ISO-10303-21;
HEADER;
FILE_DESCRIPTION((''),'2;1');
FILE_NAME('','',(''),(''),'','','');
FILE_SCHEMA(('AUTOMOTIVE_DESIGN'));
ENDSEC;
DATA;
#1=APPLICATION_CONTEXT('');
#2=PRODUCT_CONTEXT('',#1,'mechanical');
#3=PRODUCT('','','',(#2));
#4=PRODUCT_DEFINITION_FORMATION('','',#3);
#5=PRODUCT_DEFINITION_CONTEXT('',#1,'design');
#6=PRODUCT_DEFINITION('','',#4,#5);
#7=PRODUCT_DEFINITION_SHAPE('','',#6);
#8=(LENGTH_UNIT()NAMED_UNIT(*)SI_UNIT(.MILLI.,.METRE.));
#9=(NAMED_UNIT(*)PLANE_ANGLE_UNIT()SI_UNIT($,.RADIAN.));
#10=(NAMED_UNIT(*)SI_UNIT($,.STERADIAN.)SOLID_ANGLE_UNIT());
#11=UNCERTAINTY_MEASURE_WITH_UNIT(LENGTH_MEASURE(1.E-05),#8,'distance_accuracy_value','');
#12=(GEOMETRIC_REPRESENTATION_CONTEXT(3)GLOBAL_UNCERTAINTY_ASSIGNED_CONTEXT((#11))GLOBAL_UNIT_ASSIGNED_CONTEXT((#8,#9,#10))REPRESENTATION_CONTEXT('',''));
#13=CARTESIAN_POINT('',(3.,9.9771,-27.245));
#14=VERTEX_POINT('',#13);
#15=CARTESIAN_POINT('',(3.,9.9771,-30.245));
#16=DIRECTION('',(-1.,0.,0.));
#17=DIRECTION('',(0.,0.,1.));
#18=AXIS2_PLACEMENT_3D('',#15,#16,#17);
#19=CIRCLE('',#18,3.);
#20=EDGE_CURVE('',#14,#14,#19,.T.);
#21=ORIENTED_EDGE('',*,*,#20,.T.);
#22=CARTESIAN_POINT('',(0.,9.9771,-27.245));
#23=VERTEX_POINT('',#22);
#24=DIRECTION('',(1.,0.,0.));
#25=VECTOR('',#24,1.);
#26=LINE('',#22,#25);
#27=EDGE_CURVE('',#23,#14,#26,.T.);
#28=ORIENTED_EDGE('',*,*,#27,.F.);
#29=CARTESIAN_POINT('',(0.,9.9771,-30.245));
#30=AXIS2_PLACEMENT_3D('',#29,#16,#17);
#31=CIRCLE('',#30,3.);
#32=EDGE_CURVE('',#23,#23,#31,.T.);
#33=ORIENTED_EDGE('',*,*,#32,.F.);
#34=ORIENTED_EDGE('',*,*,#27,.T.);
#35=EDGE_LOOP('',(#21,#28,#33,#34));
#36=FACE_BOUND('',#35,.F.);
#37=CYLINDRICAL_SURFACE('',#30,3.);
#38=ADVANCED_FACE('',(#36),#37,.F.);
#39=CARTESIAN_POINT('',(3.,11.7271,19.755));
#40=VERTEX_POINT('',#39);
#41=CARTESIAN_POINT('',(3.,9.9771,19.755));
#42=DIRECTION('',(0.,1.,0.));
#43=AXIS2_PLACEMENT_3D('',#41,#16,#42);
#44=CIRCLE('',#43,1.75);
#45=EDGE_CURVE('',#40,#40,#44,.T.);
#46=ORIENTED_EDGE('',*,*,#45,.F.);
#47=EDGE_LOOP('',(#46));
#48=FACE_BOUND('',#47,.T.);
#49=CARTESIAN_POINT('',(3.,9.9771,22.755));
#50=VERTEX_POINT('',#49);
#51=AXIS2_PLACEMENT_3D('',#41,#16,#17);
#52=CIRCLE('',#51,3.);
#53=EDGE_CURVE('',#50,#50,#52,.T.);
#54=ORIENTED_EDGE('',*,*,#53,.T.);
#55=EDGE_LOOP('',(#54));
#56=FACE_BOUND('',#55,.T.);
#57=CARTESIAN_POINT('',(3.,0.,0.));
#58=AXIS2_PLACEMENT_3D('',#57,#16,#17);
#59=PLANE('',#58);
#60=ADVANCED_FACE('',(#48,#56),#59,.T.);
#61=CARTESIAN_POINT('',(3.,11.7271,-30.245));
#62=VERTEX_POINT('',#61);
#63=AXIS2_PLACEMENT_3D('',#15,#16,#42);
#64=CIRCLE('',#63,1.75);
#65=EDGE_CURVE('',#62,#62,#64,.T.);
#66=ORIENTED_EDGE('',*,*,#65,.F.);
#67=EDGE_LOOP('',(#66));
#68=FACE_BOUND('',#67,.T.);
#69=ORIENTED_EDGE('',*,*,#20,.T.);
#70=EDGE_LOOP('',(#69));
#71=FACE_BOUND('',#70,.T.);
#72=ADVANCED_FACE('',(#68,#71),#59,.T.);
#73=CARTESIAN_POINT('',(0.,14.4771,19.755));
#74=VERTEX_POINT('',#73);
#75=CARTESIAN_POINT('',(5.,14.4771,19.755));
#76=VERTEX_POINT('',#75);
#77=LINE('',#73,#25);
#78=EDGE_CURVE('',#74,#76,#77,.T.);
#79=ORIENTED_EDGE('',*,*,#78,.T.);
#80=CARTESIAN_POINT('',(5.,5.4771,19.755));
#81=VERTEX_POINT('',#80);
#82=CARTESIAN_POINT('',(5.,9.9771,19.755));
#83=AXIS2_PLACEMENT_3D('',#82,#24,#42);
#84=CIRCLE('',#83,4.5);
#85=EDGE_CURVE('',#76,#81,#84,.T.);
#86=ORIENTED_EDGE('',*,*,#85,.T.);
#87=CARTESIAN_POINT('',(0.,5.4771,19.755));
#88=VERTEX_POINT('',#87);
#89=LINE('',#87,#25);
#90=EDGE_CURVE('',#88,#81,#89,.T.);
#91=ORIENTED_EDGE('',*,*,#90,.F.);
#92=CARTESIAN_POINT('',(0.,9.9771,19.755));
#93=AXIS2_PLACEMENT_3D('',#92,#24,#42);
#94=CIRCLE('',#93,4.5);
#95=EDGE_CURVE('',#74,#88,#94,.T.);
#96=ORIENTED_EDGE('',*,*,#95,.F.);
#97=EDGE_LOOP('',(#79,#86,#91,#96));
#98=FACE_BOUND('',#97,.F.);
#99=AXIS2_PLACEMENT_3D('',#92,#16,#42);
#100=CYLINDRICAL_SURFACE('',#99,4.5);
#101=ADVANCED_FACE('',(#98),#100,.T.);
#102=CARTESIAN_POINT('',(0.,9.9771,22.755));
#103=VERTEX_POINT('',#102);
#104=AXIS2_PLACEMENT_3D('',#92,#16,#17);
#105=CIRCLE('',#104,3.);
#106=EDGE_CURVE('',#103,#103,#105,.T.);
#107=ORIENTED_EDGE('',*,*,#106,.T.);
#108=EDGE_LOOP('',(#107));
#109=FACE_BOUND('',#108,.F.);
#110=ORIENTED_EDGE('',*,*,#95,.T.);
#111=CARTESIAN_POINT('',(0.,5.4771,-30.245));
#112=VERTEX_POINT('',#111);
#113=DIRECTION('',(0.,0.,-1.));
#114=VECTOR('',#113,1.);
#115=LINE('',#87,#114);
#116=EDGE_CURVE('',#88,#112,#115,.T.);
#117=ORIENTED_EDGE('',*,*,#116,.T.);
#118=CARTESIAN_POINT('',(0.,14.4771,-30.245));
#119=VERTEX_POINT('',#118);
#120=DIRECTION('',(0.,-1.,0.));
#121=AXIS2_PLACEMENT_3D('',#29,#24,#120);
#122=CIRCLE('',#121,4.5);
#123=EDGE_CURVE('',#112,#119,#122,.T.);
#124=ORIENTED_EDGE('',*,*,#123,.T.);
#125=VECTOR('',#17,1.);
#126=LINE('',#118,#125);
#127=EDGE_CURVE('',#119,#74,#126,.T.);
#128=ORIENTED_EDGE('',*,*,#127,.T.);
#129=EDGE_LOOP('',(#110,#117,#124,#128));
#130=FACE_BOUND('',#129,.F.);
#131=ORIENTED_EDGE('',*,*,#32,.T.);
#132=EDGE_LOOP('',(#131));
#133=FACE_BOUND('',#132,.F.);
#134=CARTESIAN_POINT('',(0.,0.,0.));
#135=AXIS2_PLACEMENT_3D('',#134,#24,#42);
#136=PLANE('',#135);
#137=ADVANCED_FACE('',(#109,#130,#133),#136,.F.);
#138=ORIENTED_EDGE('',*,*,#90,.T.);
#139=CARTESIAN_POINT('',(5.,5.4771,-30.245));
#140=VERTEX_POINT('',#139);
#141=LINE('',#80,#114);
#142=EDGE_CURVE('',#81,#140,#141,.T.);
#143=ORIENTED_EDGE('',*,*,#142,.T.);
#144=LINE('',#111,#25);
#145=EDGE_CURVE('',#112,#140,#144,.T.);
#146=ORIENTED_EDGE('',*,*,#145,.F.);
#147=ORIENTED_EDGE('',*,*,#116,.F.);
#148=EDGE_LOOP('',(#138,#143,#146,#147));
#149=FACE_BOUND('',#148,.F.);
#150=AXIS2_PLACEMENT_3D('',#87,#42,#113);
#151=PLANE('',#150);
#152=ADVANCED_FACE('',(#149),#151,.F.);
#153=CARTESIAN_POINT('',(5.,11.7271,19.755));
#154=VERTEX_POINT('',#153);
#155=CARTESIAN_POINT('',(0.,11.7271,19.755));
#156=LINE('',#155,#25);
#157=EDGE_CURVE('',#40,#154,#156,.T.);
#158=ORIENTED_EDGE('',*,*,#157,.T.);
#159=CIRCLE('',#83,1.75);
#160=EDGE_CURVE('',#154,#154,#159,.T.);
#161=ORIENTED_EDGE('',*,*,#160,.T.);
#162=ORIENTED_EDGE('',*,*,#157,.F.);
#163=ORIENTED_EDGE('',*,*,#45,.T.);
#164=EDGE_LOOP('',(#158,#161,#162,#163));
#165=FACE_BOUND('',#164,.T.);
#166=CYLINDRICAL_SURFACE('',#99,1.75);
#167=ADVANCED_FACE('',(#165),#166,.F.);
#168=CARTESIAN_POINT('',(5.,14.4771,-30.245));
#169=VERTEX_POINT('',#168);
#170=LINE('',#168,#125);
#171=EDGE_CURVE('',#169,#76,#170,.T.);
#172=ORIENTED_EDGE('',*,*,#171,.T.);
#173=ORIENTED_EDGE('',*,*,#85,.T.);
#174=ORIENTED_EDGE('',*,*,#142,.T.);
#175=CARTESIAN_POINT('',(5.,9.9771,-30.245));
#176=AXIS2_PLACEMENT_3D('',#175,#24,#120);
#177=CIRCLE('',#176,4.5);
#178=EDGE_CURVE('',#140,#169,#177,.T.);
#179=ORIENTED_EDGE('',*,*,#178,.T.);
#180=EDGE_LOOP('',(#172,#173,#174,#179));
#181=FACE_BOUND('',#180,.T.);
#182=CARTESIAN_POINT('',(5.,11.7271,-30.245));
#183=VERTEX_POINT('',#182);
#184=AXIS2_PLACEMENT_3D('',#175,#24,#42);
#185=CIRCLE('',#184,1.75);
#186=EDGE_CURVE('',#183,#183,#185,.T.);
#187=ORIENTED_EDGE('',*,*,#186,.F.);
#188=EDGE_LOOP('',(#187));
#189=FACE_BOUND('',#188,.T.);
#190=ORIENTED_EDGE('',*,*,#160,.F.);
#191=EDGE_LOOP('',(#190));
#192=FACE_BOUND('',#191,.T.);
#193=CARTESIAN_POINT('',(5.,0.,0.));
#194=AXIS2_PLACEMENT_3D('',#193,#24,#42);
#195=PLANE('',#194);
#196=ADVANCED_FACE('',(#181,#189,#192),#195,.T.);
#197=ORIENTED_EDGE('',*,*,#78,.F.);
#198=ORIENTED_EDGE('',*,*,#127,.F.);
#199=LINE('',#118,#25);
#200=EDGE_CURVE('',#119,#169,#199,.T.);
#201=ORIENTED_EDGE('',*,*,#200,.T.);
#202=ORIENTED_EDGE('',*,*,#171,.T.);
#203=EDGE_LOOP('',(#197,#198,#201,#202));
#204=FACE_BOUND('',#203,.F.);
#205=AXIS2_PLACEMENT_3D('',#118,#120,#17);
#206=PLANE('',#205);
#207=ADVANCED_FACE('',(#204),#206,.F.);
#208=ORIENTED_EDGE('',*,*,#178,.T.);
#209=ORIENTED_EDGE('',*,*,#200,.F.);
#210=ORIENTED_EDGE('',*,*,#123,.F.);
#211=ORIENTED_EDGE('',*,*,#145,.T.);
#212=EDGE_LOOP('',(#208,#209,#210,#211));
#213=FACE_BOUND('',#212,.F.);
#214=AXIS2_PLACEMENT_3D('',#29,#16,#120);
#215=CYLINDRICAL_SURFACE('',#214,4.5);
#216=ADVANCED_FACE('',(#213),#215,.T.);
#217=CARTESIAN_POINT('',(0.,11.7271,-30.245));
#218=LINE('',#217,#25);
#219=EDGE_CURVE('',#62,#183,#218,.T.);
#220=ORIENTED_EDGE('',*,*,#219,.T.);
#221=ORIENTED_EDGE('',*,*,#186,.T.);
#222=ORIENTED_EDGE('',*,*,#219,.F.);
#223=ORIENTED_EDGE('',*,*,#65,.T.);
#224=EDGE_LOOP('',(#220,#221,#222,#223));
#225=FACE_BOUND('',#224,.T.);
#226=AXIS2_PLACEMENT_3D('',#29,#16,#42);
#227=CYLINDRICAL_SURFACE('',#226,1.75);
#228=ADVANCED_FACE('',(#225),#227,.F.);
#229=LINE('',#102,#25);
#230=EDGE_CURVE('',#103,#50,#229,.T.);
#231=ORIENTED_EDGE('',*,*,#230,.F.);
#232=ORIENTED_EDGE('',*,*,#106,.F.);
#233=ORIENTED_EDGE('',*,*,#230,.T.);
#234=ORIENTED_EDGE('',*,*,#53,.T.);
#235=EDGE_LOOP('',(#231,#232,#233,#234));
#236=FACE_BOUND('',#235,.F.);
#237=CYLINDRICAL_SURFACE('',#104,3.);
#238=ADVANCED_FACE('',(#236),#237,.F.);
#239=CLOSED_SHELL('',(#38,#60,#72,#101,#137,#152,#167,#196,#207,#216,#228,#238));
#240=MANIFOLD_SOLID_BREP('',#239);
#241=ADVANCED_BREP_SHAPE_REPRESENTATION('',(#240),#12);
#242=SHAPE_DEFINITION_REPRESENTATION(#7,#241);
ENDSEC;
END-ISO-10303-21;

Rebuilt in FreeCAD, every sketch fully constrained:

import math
import FreeCAD as App
import Part
import Sketcher
from FreeCAD import Vector

doc = App.newDocument("Part")
params = doc.addObject("Spreadsheet::Sheet", "Params")
for row, (alias, value) in enumerate([
    ("sketch1_diameter", "3.5 mm"),
    ("sketch1_radius", "4.5 mm"),
    ("sketch1_height", "50 mm"),
    ("pad1_length", "5 mm"),
    ("sketch2_diameter", "6 mm"),
    ("pocket1_length", "3 mm"),
], start=1):
    params.set(f"A{row}", alias)
    params.set(f"B{row}", "=" + value)
    params.setAlias(f"B{row}", alias)

body = doc.addObject("PartDesign::Body", "Body")

sketch1 = body.newObject("Sketcher::SketchObject", "Sketch")
sketch1.AttachmentSupport = (doc.getObject("YZ_Plane"), [""])
sketch1.MapMode = "FlatFace"
sketch1.addGeometry([
    Part.ArcOfCircle(Part.Circle(Vector(10, 19.8, 0), Vector(0, 0, 1), 4.5), math.radians(0), math.radians(180)),
    Part.LineSegment(Vector(5.5, 19.8, 0), Vector(5.5, -30.2, 0)),
    Part.ArcOfCircle(Part.Circle(Vector(10, -30.2, 0), Vector(0, 0, 1), 4.5), math.radians(180), math.radians(360)),
    Part.LineSegment(Vector(14.5, -30.2, 0), Vector(14.5, 19.8, 0)),
    Part.Circle(Vector(10, -30.2, 0), Vector(0, 0, 1), 1.8),
    Part.Circle(Vector(10, 19.8, 0), Vector(0, 0, 1), 1.8),
], False)
sketch1.addConstraint([
    Sketcher.Constraint("Tangent", 0, 2, 1, 1),
    Sketcher.Constraint("Tangent", 1, 2, 2, 1),
    Sketcher.Constraint("Tangent", 2, 2, 3, 1),
    Sketcher.Constraint("Tangent", 3, 2, 0, 1),
    Sketcher.Constraint("Vertical", 1),
    Sketcher.Constraint("Vertical", 3),
    Sketcher.Constraint("Coincident", 4, 3, 2, 3),
    Sketcher.Constraint("Coincident", 5, 3, 0, 3),
    Sketcher.Constraint("Equal", 4, 5),
    Sketcher.Constraint("Diameter", 4, 3.5),
    Sketcher.Constraint("Radius", 0, 4.5),
    Sketcher.Constraint("DistanceY", 1, 2, 1, 1, 50.0),
    Sketcher.Constraint("DistanceX", -1, 1, 0, 3, 9.977),
    Sketcher.Constraint("DistanceY", -1, 1, 0, 3, 19.755),
])
sketch1.setExpression("Constraints[9]", "Params.sketch1_diameter")
sketch1.setExpression("Constraints[10]", "Params.sketch1_radius")
sketch1.setExpression("Constraints[11]", "Params.sketch1_height")
pad1 = body.newObject("PartDesign::Pad", "Pad")
pad1.Profile = sketch1
pad1.setExpression("Length", "Params.pad1_length")

sketch2 = body.newObject("Sketcher::SketchObject", "Sketch001")
sketch2.AttachmentSupport = (doc.getObject("YZ_Plane"), [""])
sketch2.MapMode = "FlatFace"
sketch2.addGeometry([
    Part.Circle(Vector(10, 19.8, 0), Vector(0, 0, 1), 3),
    Part.Circle(Vector(10, -30.2, 0), Vector(0, 0, 1), 3),
], False)
sketch2.addConstraint([
    Sketcher.Constraint("Equal", 0, 1),
    Sketcher.Constraint("Vertical", 0, 3, 1, 3),
    Sketcher.Constraint("Diameter", 0, 6.0),
    Sketcher.Constraint("DistanceY", 1, 3, 0, 3, 50.0),
    Sketcher.Constraint("DistanceX", -1, 1, 0, 3, 9.977),
    Sketcher.Constraint("DistanceY", -1, 1, 0, 3, 19.755),
])
sketch2.setExpression("Constraints[2]", "Params.sketch2_diameter")
pocket1 = body.newObject("PartDesign::Pocket", "Pocket")
pocket1.Profile = sketch2
pocket1.setExpression("Length", "Params.pocket1_length")
pocket1.Reversed = True

doc.recompute()
